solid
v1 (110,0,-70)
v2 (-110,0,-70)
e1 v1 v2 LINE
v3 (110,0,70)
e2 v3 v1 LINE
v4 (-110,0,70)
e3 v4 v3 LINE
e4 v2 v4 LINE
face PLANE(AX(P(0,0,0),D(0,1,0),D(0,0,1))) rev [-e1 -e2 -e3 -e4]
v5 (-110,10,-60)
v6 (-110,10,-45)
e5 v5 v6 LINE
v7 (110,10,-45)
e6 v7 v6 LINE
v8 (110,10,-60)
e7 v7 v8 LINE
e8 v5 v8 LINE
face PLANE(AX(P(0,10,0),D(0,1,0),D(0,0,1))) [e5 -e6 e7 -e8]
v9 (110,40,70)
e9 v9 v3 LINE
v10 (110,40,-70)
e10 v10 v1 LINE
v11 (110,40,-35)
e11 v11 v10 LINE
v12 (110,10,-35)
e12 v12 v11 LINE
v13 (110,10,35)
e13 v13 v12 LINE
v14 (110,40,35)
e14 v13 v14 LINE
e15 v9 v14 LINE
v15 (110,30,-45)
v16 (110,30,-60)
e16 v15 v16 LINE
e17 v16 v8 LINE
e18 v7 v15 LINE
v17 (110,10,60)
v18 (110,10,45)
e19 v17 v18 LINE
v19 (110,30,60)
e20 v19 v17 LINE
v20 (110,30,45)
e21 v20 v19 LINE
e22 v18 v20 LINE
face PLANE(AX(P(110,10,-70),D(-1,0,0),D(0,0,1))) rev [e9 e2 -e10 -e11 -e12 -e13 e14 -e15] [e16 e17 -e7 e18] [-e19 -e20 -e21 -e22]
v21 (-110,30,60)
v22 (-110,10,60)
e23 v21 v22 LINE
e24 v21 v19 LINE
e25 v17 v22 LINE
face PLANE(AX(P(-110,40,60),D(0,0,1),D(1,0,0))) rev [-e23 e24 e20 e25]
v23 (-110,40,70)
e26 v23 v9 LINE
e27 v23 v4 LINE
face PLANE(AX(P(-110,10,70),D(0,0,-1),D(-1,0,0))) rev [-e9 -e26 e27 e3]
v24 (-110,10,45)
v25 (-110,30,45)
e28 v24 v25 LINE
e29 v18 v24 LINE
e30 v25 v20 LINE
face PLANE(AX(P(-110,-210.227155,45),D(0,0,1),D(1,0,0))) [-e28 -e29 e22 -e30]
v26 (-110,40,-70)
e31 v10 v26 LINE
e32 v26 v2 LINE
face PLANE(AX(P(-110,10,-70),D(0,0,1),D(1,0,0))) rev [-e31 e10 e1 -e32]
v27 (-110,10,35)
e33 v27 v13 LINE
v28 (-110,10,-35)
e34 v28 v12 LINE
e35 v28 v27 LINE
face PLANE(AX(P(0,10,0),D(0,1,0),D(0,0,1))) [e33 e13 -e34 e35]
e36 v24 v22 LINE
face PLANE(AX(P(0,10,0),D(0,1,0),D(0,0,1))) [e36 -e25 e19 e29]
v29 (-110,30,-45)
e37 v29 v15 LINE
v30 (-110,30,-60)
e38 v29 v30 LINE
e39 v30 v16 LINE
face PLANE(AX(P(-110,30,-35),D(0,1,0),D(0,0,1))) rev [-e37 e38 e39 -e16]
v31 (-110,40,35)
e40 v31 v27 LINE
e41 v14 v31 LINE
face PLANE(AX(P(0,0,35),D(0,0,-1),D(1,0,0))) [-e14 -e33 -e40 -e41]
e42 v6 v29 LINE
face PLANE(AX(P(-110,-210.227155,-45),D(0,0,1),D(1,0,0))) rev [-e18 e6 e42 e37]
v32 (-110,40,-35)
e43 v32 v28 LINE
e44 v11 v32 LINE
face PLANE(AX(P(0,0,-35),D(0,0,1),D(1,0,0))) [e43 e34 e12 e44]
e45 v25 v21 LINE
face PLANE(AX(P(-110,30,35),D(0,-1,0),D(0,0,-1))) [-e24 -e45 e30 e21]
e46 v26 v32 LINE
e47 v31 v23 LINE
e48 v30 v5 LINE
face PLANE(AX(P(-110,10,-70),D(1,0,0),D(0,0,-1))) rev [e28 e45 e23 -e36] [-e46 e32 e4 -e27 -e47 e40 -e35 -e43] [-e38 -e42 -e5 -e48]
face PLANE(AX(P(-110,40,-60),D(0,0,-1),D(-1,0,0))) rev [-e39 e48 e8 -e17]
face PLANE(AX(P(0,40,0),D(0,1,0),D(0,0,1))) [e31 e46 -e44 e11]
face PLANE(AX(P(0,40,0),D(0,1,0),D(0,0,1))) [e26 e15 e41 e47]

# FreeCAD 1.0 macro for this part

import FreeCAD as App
import Part
import Sketcher

V = App.Vector

doc = App.newDocument("Part")
body = doc.addObject("PartDesign::Body", "Body")

# Sketch on XZ plane
sketch1 = body.newObject("Sketcher::SketchObject", "Sketch")
sketch1.AttachmentSupport = (doc.getObject("XZ_Plane"), [""])
sketch1.MapMode = "FlatFace"
sketch1.addGeometry([
    Part.LineSegment(V(-110, -70, 0), V(-110, 70, 0)),
    Part.LineSegment(V(-110, 70, 0), V(110, 70, 0)),
    Part.LineSegment(V(110, 70, 0), V(110, -70, 0)),
    Part.LineSegment(V(110, -70, 0), V(-110, -70, 0)),
], False)
sketch1.addConstraint([
    Sketcher.Constraint("Coincident", 0, 2, 1, 1),
    Sketcher.Constraint("Coincident", 1, 2, 2, 1),
    Sketcher.Constraint("Coincident", 2, 2, 3, 1),
    Sketcher.Constraint("Coincident", 3, 2, 0, 1),
    Sketcher.Constraint("Vertical", 0),
    Sketcher.Constraint("Horizontal", 1),
    Sketcher.Constraint("Vertical", 2),
    Sketcher.Constraint("Horizontal", 3),
    Sketcher.Constraint("Symmetric", 0, 2, 2, 2, -1, 1),
    Sketcher.Constraint("DistanceX", 1, 1, 1, 2, 220.0),
    Sketcher.Constraint("DistanceY", 0, 1, 0, 2, 140.0),
])
pad1 = body.newObject("PartDesign::Pad", "Pad")
pad1.Profile = sketch1
pad1.Length = 10
pad1.Reversed = True

# Sketch on XZ plane
sketch2 = body.newObject("Sketcher::SketchObject", "Sketch001")
sketch2.AttachmentSupport = (doc.getObject("XZ_Plane"), [""])
sketch2.MapMode = "FlatFace"
sketch2.AttachmentOffset = App.Placement(V(0, 0, -10), App.Rotation())
sketch2.addGeometry([
    Part.LineSegment(V(-110, -70, 0), V(-110, -60, 0)),  # 0
    Part.LineSegment(V(-110, -60, 0), V(110, -60, 0)),  # 1
    Part.LineSegment(V(110, -60, 0), V(110, -70, 0)),  # 2
    Part.LineSegment(V(110, -70, 0), V(-110, -70, 0)),  # 3
    Part.LineSegment(V(-110, 60, 0), V(-110, 70, 0)),  # 4
    Part.LineSegment(V(-110, 70, 0), V(110, 70, 0)),  # 5
    Part.LineSegment(V(110, 70, 0), V(110, 60, 0)),  # 6
    Part.LineSegment(V(110, 60, 0), V(-110, 60, 0)),  # 7
], False)
sketch2.addConstraint([
    Sketcher.Constraint("Coincident", 0, 2, 1, 1),
    Sketcher.Constraint("Coincident", 1, 2, 2, 1),
    Sketcher.Constraint("Coincident", 2, 2, 3, 1),
    Sketcher.Constraint("Coincident", 3, 2, 0, 1),
    Sketcher.Constraint("Coincident", 4, 2, 5, 1),
    Sketcher.Constraint("Coincident", 5, 2, 6, 1),
    Sketcher.Constraint("Coincident", 6, 2, 7, 1),
    Sketcher.Constraint("Coincident", 7, 2, 4, 1),
    Sketcher.Constraint("Vertical", 0),
    Sketcher.Constraint("Horizontal", 1),
    Sketcher.Constraint("Vertical", 2),
    Sketcher.Constraint("Horizontal", 3),
    Sketcher.Constraint("Vertical", 4),
    Sketcher.Constraint("Horizontal", 5),
    Sketcher.Constraint("Vertical", 6),
    Sketcher.Constraint("Horizontal", 7),
    Sketcher.Constraint("Symmetric", 2, 2, 4, 2, -1, 1),
    Sketcher.Constraint("Symmetric", 0, 2, 6, 2, -1, 1),
    Sketcher.Constraint("Vertical", 3, 2, 4, 2),
    Sketcher.Constraint("DistanceX", 1, 1, 1, 2, 220.0),
    Sketcher.Constraint("DistanceY", 0, 1, 0, 2, 10.0),
    Sketcher.Constraint("DistanceY", 0, 2, -1, 1, 60.0),
])
pad2 = body.newObject("PartDesign::Pad", "Pad001")
pad2.Profile = sketch2
pad2.Length = 30
pad2.Reversed = True

# Sketch on XY plane
sketch3 = body.newObject("Sketcher::SketchObject", "Sketch002")
sketch3.AttachmentSupport = (doc.getObject("XY_Plane"), [""])
sketch3.MapMode = "FlatFace"
sketch3.AttachmentOffset = App.Placement(V(0, 0, -60), App.Rotation())
sketch3.addGeometry([
    Part.LineSegment(V(-110, 40, 0), V(-110, 30, 0)),
    Part.LineSegment(V(-110, 30, 0), V(110, 30, 0)),
    Part.LineSegment(V(110, 30, 0), V(110, 40, 0)),
    Part.LineSegment(V(110, 40, 0), V(-110, 40, 0)),
], False)
sketch3.addConstraint([
    Sketcher.Constraint("Coincident", 0, 2, 1, 1),
    Sketcher.Constraint("Coincident", 1, 2, 2, 1),
    Sketcher.Constraint("Coincident", 2, 2, 3, 1),
    Sketcher.Constraint("Coincident", 3, 2, 0, 1),
    Sketcher.Constraint("Vertical", 0),
    Sketcher.Constraint("Horizontal", 1),
    Sketcher.Constraint("Vertical", 2),
    Sketcher.Constraint("Horizontal", 3),
    Sketcher.Constraint("DistanceX", 1, 1, 1, 2, 220.0),
    Sketcher.Constraint("DistanceY", 0, 2, 0, 1, 10.0),
    Sketcher.Constraint("DistanceX", 0, 2, -1, 1, 110.0),
    Sketcher.Constraint("DistanceY", -1, 1, 0, 2, 30.0),
])
pad3 = body.newObject("PartDesign::Pad", "Pad002")
pad3.Profile = sketch3
pad3.Length = 25
doc.recompute()

mirrored = body.newObject("PartDesign::Mirrored", "Mirrored")
mirrored.Originals = [pad3]
mirrored.MirrorPlane = (doc.getObject("XY_Plane"), [""])
body.Tip = mirrored

# Sketch on XZ plane
sketch4 = body.newObject("Sketcher::SketchObject", "Sketch003")
sketch4.AttachmentSupport = (doc.getObject("XZ_Plane"), [""])
sketch4.MapMode = "FlatFace"
sketch4.AttachmentOffset = App.Placement(V(0, 0, -30), App.Rotation())
sketch4.addGeometry([
    Part.LineSegment(V(-110, -35, 0), V(-110, -45, 0)),
    Part.LineSegment(V(-110, -45, 0), V(110, -45, 0)),
    Part.LineSegment(V(110, -45, 0), V(110, -35, 0)),
    Part.LineSegment(V(110, -35, 0), V(-110, -35, 0)),
], False)
sketch4.addConstraint([
    Sketcher.Constraint("Coincident", 0, 2, 1, 1),
    Sketcher.Constraint("Coincident", 1, 2, 2, 1),
    Sketcher.Constraint("Coincident", 2, 2, 3, 1),
    Sketcher.Constraint("Coincident", 3, 2, 0, 1),
    Sketcher.Constraint("Vertical", 0),
    Sketcher.Constraint("Horizontal", 1),
    Sketcher.Constraint("Vertical", 2),
    Sketcher.Constraint("Horizontal", 3),
    Sketcher.Constraint("DistanceX", 1, 1, 1, 2, 220.0),
    Sketcher.Constraint("DistanceY", 0, 2, 0, 1, 10.0),
    Sketcher.Constraint("DistanceX", 0, 2, -1, 1, 110.0),
    Sketcher.Constraint("DistanceY", 0, 2, -1, 1, 45.0),
])
pad4 = body.newObject("PartDesign::Pad", "Pad003")
pad4.Profile = sketch4
pad4.Length = 20
doc.recompute()

mirrored2 = body.newObject("PartDesign::Mirrored", "Mirrored001")
mirrored2.Originals = [pad4]
mirrored2.MirrorPlane = (doc.getObject("XY_Plane"), [""])
body.Tip = mirrored2

doc.recompute()
